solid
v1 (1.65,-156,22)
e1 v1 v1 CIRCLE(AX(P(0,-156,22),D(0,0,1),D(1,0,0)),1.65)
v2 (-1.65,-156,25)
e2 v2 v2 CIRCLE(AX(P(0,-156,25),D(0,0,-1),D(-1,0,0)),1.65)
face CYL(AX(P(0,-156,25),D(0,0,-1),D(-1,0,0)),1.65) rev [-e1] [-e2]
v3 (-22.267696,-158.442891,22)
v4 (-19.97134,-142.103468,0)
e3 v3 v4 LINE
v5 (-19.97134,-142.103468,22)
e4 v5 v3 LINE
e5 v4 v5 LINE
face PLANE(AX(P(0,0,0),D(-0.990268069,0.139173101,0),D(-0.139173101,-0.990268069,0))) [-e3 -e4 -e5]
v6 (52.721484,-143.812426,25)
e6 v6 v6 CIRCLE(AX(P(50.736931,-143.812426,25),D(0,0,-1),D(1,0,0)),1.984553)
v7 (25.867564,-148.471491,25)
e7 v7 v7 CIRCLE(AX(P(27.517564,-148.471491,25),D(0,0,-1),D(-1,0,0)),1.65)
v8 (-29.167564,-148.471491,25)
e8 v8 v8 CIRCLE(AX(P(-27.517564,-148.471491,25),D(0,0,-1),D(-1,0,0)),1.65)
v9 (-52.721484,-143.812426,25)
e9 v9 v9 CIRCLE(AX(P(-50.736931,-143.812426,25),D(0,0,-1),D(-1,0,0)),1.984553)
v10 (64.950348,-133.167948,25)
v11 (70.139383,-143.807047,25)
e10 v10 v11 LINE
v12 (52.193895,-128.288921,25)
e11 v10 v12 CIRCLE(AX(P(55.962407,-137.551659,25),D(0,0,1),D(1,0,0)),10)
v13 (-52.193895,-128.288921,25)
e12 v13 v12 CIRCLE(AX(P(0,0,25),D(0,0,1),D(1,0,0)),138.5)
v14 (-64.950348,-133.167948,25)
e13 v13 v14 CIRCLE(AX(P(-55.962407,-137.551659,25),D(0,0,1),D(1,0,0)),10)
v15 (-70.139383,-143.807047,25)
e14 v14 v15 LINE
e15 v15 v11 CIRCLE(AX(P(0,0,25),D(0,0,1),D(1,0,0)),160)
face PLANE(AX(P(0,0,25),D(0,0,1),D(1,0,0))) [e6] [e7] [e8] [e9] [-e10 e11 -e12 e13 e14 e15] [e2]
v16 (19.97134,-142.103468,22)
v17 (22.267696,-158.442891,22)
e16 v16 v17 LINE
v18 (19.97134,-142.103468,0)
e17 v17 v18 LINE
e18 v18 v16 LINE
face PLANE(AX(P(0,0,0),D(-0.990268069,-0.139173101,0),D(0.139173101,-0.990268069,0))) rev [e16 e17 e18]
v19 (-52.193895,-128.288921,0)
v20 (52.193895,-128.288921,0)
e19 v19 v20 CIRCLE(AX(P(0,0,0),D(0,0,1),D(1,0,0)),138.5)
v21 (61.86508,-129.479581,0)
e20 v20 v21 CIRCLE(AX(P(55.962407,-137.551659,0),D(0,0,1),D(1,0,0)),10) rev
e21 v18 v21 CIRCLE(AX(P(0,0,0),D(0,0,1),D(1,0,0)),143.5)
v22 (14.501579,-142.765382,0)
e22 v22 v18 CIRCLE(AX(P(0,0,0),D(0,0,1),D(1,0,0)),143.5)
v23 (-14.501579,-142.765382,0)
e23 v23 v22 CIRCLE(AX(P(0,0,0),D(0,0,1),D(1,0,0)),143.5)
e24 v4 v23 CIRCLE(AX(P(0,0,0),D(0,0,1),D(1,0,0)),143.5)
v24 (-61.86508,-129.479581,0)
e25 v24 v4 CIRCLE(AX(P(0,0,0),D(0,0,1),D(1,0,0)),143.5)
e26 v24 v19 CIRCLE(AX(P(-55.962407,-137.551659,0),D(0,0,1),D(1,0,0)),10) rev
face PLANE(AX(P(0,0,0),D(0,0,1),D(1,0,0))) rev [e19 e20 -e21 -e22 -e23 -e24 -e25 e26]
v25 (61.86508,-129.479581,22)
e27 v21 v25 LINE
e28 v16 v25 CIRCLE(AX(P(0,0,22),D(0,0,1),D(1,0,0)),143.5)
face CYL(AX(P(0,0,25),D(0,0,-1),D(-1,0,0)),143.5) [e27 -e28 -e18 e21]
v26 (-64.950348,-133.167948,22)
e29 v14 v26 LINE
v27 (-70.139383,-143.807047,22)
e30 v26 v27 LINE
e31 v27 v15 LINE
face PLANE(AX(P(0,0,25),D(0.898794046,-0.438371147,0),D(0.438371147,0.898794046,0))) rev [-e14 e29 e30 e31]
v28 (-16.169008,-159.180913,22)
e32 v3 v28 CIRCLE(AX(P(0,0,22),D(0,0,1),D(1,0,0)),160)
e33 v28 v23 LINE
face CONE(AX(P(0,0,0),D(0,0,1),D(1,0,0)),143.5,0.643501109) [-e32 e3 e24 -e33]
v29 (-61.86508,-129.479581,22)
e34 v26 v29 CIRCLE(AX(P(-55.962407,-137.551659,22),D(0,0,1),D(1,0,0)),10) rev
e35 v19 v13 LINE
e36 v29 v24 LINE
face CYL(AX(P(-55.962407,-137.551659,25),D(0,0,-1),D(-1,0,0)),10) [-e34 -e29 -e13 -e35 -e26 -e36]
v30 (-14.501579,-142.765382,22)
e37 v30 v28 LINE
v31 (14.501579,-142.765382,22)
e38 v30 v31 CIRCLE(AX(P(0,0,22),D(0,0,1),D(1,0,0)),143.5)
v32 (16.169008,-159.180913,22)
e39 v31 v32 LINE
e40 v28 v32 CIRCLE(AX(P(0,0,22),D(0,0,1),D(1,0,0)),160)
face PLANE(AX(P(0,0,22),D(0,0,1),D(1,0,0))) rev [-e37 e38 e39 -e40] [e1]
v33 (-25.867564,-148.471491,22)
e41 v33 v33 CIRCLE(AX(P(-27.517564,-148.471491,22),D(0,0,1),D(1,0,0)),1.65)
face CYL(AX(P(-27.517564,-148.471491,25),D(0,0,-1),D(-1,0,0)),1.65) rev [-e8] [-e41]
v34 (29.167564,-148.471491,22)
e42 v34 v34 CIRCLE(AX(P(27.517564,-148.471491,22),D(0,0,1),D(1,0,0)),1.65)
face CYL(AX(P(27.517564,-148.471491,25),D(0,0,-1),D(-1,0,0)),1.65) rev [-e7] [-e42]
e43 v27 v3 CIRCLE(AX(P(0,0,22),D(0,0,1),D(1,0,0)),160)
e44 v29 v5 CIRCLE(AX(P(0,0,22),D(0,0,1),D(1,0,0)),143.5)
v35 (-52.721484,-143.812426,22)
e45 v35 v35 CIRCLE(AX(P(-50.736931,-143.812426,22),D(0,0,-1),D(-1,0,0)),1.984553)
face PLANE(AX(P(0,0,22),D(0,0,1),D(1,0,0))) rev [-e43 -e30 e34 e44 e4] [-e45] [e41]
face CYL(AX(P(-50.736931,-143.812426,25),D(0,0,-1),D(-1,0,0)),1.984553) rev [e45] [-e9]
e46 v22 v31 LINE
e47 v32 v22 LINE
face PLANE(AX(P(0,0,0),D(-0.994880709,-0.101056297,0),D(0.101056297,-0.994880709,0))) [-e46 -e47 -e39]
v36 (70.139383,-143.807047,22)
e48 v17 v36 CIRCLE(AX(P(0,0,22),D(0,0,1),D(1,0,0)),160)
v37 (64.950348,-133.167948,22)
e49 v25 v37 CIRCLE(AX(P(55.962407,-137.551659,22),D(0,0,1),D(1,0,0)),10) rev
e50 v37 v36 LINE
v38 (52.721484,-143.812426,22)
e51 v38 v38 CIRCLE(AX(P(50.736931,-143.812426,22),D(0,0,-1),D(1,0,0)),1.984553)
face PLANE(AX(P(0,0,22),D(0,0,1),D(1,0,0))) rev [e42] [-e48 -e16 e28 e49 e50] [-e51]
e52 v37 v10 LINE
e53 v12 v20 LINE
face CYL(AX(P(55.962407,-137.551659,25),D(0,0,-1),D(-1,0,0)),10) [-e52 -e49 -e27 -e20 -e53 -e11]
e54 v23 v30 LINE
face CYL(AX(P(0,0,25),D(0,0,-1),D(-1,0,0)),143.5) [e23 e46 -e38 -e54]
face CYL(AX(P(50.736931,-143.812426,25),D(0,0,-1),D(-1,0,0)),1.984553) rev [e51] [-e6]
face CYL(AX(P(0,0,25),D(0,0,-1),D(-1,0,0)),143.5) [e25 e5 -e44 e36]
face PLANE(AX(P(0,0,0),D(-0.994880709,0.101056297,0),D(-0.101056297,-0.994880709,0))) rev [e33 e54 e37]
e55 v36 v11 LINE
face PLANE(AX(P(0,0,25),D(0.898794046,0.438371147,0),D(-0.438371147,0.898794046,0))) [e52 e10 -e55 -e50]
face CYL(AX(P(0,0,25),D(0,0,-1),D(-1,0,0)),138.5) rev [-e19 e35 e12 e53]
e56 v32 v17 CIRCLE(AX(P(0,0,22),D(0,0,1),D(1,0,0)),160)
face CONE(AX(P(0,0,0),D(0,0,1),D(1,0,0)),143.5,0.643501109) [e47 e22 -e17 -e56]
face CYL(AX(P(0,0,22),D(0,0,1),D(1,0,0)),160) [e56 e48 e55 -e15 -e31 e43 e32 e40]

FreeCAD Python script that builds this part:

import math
import FreeCAD as App
import Part
import Sketcher

V = App.Vector
Q = App.Units.Quantity


def edges_at(feature, points):
    """Names of the edges that pass closest to the given points."""
    edges = feature.Shape.Edges
    near = lambda p: min(range(len(edges)), key=lambda i: edges[i].distToShape(Part.Vertex(*p))[0])
    return sorted({f"Edge{near(p) + 1}" for p in points})

doc = App.newDocument("Part")
body = doc.addObject("PartDesign::Body", "Body")

# Sketch on XY plane
sketch1 = doc.addObject("Sketcher::SketchObject", "Sketch")
body.addObject(sketch1)
sketch1.AttachmentSupport = (doc.XY_Plane, [""])
sketch1.MapMode = "FlatFace"
sketch1.addGeometry(Part.LineSegment(V(63, -129, 0), V(61, -124, 0)), False)
sketch1.addGeometry(Part.ArcOfCircle(Part.Circle(V(0, 0, 0), V(0, 0, 1), 138), math.radians(-116), math.radians(-64)), False)
sketch1.addGeometry(Part.LineSegment(V(-61, -124, 0), V(-63, -129, 0)), False)
sketch1.addGeometry(Part.ArcOfCircle(Part.Circle(V(0, 0, 0), V(0, 0, 1), 144), math.radians(-116), math.radians(-64)), False)
sketch1.addConstraint(Sketcher.Constraint("Coincident", 0, 2, 1, 2))
sketch1.addConstraint(Sketcher.Constraint("Coincident", 1, 1, 2, 1))
sketch1.addConstraint(Sketcher.Constraint("Coincident", 2, 2, 3, 1))
sketch1.addConstraint(Sketcher.Constraint("Coincident", 3, 2, 0, 1))
sketch1.addConstraint(Sketcher.Constraint("Coincident", 1, 3, -1, 1))
sketch1.addConstraint(Sketcher.Constraint("Coincident", 3, 3, -1, 1))
sketch1.addConstraint(Sketcher.Constraint("Horizontal", 0, 2, 1, 1))
sketch1.addConstraint(Sketcher.Constraint("Horizontal", 2, 2, 3, 2))
sketch1.addConstraint(Sketcher.Constraint("Radius", 1, Q("138.5 mm")))
sketch1.addConstraint(Sketcher.Constraint("Radius", 3, Q("143.5 mm")))
sketch1.addConstraint(Sketcher.Constraint("Angle", 0, Q("116 deg")))
sketch1.addConstraint(Sketcher.Constraint("DistanceX", 2, 2, -1, 1, Q("62.90626 mm")))
pad1 = doc.addObject("PartDesign::Pad", "Pad")
body.addObject(pad1)
pad1.Profile = sketch1
pad1.Length = 25

# Sketch on XY plane
sketch2 = doc.addObject("Sketcher::SketchObject", "Sketch001")
body.addObject(sketch2)
sketch2.AttachmentSupport = (doc.XY_Plane, [""])
sketch2.MapMode = "FlatFace"
sketch2.AttachmentOffset = App.Placement(V(0, 0, 22), App.Rotation())
sketch2.addGeometry(Part.LineSegment(V(70, -144, 0), V(63, -129, 0)), False)
sketch2.addGeometry(Part.ArcOfCircle(Part.Circle(V(0, 0, 0), V(0, 0, 1), 144), math.radians(-116), math.radians(-64)), False)
sketch2.addGeometry(Part.LineSegment(V(-63, -129, 0), V(-70, -144, 0)), False)
sketch2.addGeometry(Part.ArcOfCircle(Part.Circle(V(0, 0, 0), V(0, 0, 1), 160), math.radians(-116), math.radians(-64)), False)
sketch2.addConstraint(Sketcher.Constraint("Coincident", 0, 2, 1, 2))
sketch2.addConstraint(Sketcher.Constraint("Coincident", 1, 1, 2, 1))
sketch2.addConstraint(Sketcher.Constraint("Coincident", 2, 2, 3, 1))
sketch2.addConstraint(Sketcher.Constraint("Coincident", 3, 2, 0, 1))
sketch2.addConstraint(Sketcher.Constraint("Coincident", 1, 3, -1, 1))
sketch2.addConstraint(Sketcher.Constraint("Coincident", 3, 3, -1, 1))
sketch2.addConstraint(Sketcher.Constraint("Horizontal", 0, 2, 1, 1))
sketch2.addConstraint(Sketcher.Constraint("Horizontal", 2, 2, 3, 2))
sketch2.addConstraint(Sketcher.Constraint("Radius", 3, Q("160 mm")))
sketch2.addConstraint(Sketcher.Constraint("Radius", 1, Q("143.5 mm")))
sketch2.addConstraint(Sketcher.Constraint("Angle", 0, Q("116 deg")))
sketch2.addConstraint(Sketcher.Constraint("DistanceX", -1, 1, 0, 2, Q("62.90626 mm")))
pad2 = doc.addObject("PartDesign::Pad", "Pad001")
body.addObject(pad2)
pad2.Profile = sketch2
pad2.Length = 3

# Sketch on XY plane
sketch3 = doc.addObject("Sketcher::SketchObject", "Sketch002")
body.addObject(sketch3)
sketch3.AttachmentSupport = (doc.XY_Plane, [""])
sketch3.MapMode = "FlatFace"
sketch3.addGeometry(Part.Circle(V(27.5, -148.5, 0), V(0, 0, 1), 1.6), False)
sketch3.addGeometry(Part.Circle(V(0, -156, 0), V(0, 0, 1), 1.6), False)
sketch3.addGeometry(Part.LineSegment(V(16.2, -159.2, 0), V(14.5, -142.8, 0)), False)
sketch3.addGeometry(Part.ArcOfCircle(Part.Circle(V(0, 0, 0), V(0, 0, 1), 143.5), math.radians(-84.2), math.radians(-82)), False)
sketch3.addGeometry(Part.LineSegment(V(20, -142.1, 0), V(22.3, -158.4, 0)), False)
sketch3.addGeometry(Part.ArcOfCircle(Part.Circle(V(0, 0, 0), V(0, 0, 1), 160), math.radians(-84.2), math.radians(-82)), False)
sketch3.addGeometry(Part.ArcOfCircle(Part.Circle(V(0, 0, 0), V(0, 0, 1), 143.5), math.radians(-98), math.radians(-95.8)), False)
sketch3.addGeometry(Part.LineSegment(V(-14.5, -142.8, 0), V(-16.2, -159.2, 0)), False)
sketch3.addGeometry(Part.ArcOfCircle(Part.Circle(V(0, 0, 0), V(0, 0, 1), 160), math.radians(-98), math.radians(-95.8)), False)
sketch3.addGeometry(Part.LineSegment(V(-22.3, -158.4, 0), V(-20, -142.1, 0)), False)
sketch3.addGeometry(Part.Circle(V(-27.5, -148.5, 0), V(0, 0, 1), 1.6), False)
sketch3.addConstraint(Sketcher.Constraint("Coincident", 2, 2, 3, 1))
sketch3.addConstraint(Sketcher.Constraint("Coincident", 3, 2, 4, 1))
sketch3.addConstraint(Sketcher.Constraint("Coincident", 4, 2, 5, 2))
sketch3.addConstraint(Sketcher.Constraint("Coincident", 5, 1, 2, 1))
sketch3.addConstraint(Sketcher.Constraint("Coincident", 6, 2, 7, 1))
sketch3.addConstraint(Sketcher.Constraint("Coincident", 7, 2, 8, 2))
sketch3.addConstraint(Sketcher.Constraint("Coincident", 8, 1, 9, 1))
sketch3.addConstraint(Sketcher.Constraint("Coincident", 9, 2, 6, 1))
sketch3.addConstraint(Sketcher.Constraint("Coincident", 3, 3, -1, 1))
sketch3.addConstraint(Sketcher.Constraint("Coincident", 5, 3, -1, 1))
sketch3.addConstraint(Sketcher.Constraint("Coincident", 6, 3, -1, 1))
sketch3.addConstraint(Sketcher.Constraint("Coincident", 8, 3, -1, 1))
sketch3.addConstraint(Sketcher.Constraint("Equal", 0, 1))
sketch3.addConstraint(Sketcher.Constraint("Equal", 3, 6))
sketch3.addConstraint(Sketcher.Constraint("Equal", 5, 8))
sketch3.addConstraint(Sketcher.Constraint("Equal", 1, 10))
sketch3.addConstraint(Sketcher.Constraint("Symmetric", 0, 3, 10, 3, -2))
sketch3.addConstraint(Sketcher.Constraint("PointOnObject", 1, 3, -2))
sketch3.addConstraint(Sketcher.Constraint("Horizontal", 2, 2, 6, 2))
sketch3.addConstraint(Sketcher.Constraint("Horizontal", 5, 1, 7, 2))
sketch3.addConstraint(Sketcher.Constraint("Horizontal", 4, 2, 8, 1))
sketch3.addConstraint(Sketcher.Constraint("Horizontal", 3, 2, 9, 2))
sketch3.addConstraint(Sketcher.Constraint("Radius", 5, Q("160 mm")))
sketch3.addConstraint(Sketcher.Constraint("Diameter", 0, Q("3.3 mm")))
sketch3.addConstraint(Sketcher.Constraint("Radius", 3, Q("143.5 mm")))
sketch3.addConstraint(Sketcher.Constraint("Angle", 4, Q("-82 deg")))
sketch3.addConstraint(Sketcher.Constraint("DistanceY", 1, 3, -1, 1, Q("156 mm")))
sketch3.addConstraint(Sketcher.Constraint("Angle", 2, Q("95.8 deg")))
sketch3.addConstraint(Sketcher.Constraint("DistanceY", 4, 2, 0, 3, Q("9.9714 mm")))
sketch3.addConstraint(Sketcher.Constraint("DistanceY", 0, 3, -1, 1, Q("148.471491 mm")))
sketch3.addConstraint(Sketcher.Constraint("DistanceX", -1, 1, 2, 2, Q("14.501579 mm")))
sketch3.addConstraint(Sketcher.Constraint("DistanceX", 10, 3, 0, 3, Q("55.035129 mm")))
pad3 = doc.addObject("PartDesign::Pad", "Pad002")
body.addObject(pad3)
pad3.Profile = sketch3
pad3.Length = 22

# Sketch on XY plane
sketch4 = doc.addObject("Sketcher::SketchObject", "Sketch003")
body.addObject(sketch4)
sketch4.AttachmentSupport = (doc.XY_Plane, [""])
sketch4.MapMode = "FlatFace"
sketch4.addGeometry(Part.Circle(V(27.5, -148.5, 0), V(0, 0, 1), 1.6), False)
sketch4.addGeometry(Part.Circle(V(0, -156, 0), V(0, 0, 1), 1.6), False)
sketch4.addGeometry(Part.Circle(V(-27.5, -148.5, 0), V(0, 0, 1), 1.6), False)
sketch4.addConstraint(Sketcher.Constraint("Equal", 0, 1))
sketch4.addConstraint(Sketcher.Constraint("Equal", 1, 2))
sketch4.addConstraint(Sketcher.Constraint("Symmetric", 0, 3, 2, 3, -2))
sketch4.addConstraint(Sketcher.Constraint("PointOnObject", 1, 3, -2))
sketch4.addConstraint(Sketcher.Constraint("Diameter", 0, Q("3.3 mm")))
sketch4.addConstraint(Sketcher.Constraint("DistanceY", 1, 3, -1, 1, Q("156 mm")))
sketch4.addConstraint(Sketcher.Constraint("DistanceY", 0, 3, -1, 1, Q("148.471491 mm")))
sketch4.addConstraint(Sketcher.Constraint("DistanceX", 2, 3, 0, 3, Q("55.035129 mm")))
pocket1 = doc.addObject("PartDesign::Pocket", "Pocket")
body.addObject(pocket1)
pocket1.Profile = sketch4
pocket1.Type = "ThroughAll"
pocket1.Reversed = True

# Sketch on an angled plane
sketch5 = doc.addObject("Sketcher::SketchObject", "Sketch004")
body.addObject(sketch5)
sketch5.Placement = App.Placement(V(0, 0, 0), App.Rotation(V(0, 0, -1), V(-0.139173101, 0.990268069, 0), V(0.990268069, 0.139173101, 0), "ZXY"))
sketch5.addGeometry(Part.LineSegment(V(0, -144, 0), V(-22, -160, 0)), False)
sketch5.addGeometry(Part.LineSegment(V(-22, -160, 0), V(0, -160, 0)), False)
sketch5.addGeometry(Part.LineSegment(V(0, -160, 0), V(0, -144, 0)), False)
sketch5.addConstraint(Sketcher.Constraint("Coincident", 0, 2, 1, 1))
sketch5.addConstraint(Sketcher.Constraint("Coincident", 1, 2, 2, 1))
sketch5.addConstraint(Sketcher.Constraint("Coincident", 2, 2, 0, 1))
sketch5.addConstraint(Sketcher.Constraint("Horizontal", 1))
sketch5.addConstraint(Sketcher.Constraint("Vertical", 2))
sketch5.addConstraint(Sketcher.Constraint("PointOnObject", 1, 2, -2))
sketch5.addConstraint(Sketcher.Constraint("DistanceX", 1, 1, 1, 2, Q("22 mm")))
sketch5.addConstraint(Sketcher.Constraint("DistanceY", 2, 1, 2, 2, Q("16.5 mm")))
sketch5.addConstraint(Sketcher.Constraint("DistanceY", 0, 2, -1, 1, Q("160 mm")))
groove = doc.addObject("PartDesign::Groove", "Groove")
body.addObject(groove)
groove.Profile = sketch5
groove.ReferenceAxis = (sketch5, ["H_Axis"])
groove.Angle = 360
doc.recompute()

fillet = doc.addObject("PartDesign::Fillet", "Fillet")
body.addObject(fillet)
fillet.Base = (groove, edges_at(groove, [(60.714, -124.483, 12.5), (-60.714, -124.483, 12.5)]))
fillet.Radius = 10

# Sketch on XY plane
sketch6 = doc.addObject("Sketcher::SketchObject", "Sketch005")
body.addObject(sketch6)
sketch6.AttachmentSupport = (doc.XY_Plane, [""])
sketch6.MapMode = "FlatFace"
sketch6.AttachmentOffset = App.Placement(V(0, 0, 22), App.Rotation())
sketch6.addGeometry(Part.Circle(V(-50.7, -143.8, 0), V(0, 0, 1), 2), False)
sketch6.addGeometry(Part.Circle(V(50.7, -143.8, 0), V(0, 0, 1), 2), False)
sketch6.addConstraint(Sketcher.Constraint("Equal", 0, 1))
sketch6.addConstraint(Sketcher.Constraint("Symmetric", 0, 3, 1, 3, -2))
sketch6.addConstraint(Sketcher.Constraint("Diameter", 0, Q("3.969106 mm")))
sketch6.addConstraint(Sketcher.Constraint("DistanceX", 0, 3, -1, 1, Q("50.736931 mm")))
sketch6.addConstraint(Sketcher.Constraint("DistanceY", 0, 3, -1, 1, Q("143.812426 mm")))
pocket2 = doc.addObject("PartDesign::Pocket", "Pocket001")
body.addObject(pocket2)
pocket2.Profile = sketch6
pocket2.Type = "ThroughAll"
pocket2.Reversed = True

doc.recompute()
